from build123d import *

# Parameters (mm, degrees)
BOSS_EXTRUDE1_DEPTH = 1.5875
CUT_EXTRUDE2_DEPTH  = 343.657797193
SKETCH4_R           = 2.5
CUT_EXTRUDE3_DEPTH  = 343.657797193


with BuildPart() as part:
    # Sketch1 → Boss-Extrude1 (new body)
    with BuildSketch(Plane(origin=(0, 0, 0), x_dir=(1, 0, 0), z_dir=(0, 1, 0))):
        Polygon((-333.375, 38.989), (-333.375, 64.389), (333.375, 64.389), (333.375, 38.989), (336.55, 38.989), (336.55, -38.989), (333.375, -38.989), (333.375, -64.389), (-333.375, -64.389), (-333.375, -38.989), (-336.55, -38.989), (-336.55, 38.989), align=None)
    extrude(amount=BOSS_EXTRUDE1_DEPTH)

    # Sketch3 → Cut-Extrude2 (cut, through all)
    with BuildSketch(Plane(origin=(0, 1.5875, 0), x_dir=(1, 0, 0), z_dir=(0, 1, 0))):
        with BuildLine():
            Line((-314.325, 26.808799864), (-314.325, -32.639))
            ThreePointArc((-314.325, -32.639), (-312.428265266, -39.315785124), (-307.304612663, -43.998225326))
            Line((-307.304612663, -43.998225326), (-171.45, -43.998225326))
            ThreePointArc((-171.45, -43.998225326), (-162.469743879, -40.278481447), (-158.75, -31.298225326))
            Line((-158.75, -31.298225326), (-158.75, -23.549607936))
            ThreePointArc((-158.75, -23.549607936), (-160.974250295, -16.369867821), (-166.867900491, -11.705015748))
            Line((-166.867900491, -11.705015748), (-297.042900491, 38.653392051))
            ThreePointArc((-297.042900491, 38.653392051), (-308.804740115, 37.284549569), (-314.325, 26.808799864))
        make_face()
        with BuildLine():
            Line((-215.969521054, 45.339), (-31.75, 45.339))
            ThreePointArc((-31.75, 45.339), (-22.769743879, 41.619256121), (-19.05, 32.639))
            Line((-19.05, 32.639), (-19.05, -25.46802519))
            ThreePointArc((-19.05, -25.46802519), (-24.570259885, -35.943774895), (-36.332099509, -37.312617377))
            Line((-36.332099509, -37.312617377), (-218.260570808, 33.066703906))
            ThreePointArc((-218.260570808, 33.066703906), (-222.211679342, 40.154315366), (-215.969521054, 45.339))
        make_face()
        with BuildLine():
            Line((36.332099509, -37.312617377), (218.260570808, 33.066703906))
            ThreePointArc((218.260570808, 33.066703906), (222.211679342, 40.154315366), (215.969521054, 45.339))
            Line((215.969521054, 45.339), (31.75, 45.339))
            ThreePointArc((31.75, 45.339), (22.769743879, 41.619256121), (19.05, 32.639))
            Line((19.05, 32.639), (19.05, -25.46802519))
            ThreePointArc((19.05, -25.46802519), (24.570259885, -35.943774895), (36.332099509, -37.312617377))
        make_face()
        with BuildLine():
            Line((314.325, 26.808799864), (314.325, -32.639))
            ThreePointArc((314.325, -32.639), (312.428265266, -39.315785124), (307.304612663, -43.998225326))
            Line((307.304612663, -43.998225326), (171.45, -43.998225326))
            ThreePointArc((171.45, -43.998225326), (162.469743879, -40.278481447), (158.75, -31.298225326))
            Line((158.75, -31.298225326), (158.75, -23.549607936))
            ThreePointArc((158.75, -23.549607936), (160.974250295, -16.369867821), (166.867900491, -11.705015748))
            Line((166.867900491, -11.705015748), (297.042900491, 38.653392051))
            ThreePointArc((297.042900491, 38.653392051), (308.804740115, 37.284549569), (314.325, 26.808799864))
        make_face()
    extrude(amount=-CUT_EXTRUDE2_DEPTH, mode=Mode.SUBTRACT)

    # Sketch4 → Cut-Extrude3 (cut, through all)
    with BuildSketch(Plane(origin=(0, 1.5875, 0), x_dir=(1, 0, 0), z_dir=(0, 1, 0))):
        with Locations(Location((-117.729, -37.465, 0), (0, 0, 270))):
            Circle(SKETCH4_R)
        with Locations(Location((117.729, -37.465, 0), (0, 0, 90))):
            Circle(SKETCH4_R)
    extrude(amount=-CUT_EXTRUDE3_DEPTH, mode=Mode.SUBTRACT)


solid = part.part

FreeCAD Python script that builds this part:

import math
import FreeCAD as App
import Part
import Sketcher
from FreeCAD import Vector
Q = App.Units.Quantity

doc = App.newDocument("Part")
body = doc.addObject("PartDesign::Body", "Body")

sketch1 = body.newObject("Sketcher::SketchObject", "Sketch")
sketch1.AttachmentSupport = (doc.getObject("XZ_Plane"), [""])
sketch1.MapMode = "FlatFace"
sketch1.addGeometry(Part.LineSegment(Vector(-333.4, -64.4, 0), Vector(-333.4, -39, 0)), False)
sketch1.addGeometry(Part.LineSegment(Vector(-333.4, -39, 0), Vector(-336.6, -39, 0)), False)
sketch1.addGeometry(Part.LineSegment(Vector(-336.6, -39, 0), Vector(-336.6, 39, 0)), False)
sketch1.addGeometry(Part.LineSegment(Vector(-336.6, 39, 0), Vector(-333.4, 39, 0)), False)
sketch1.addGeometry(Part.LineSegment(Vector(-333.4, 39, 0), Vector(-333.4, 64.4, 0)), False)
sketch1.addGeometry(Part.LineSegment(Vector(-333.4, 64.4, 0), Vector(333.4, 64.4, 0)), False)
sketch1.addGeometry(Part.LineSegment(Vector(333.4, 64.4, 0), Vector(333.4, 39, 0)), False)
sketch1.addGeometry(Part.LineSegment(Vector(333.4, 39, 0), Vector(336.6, 39, 0)), False)
sketch1.addGeometry(Part.LineSegment(Vector(336.6, 39, 0), Vector(336.6, -39, 0)), False)
sketch1.addGeometry(Part.LineSegment(Vector(336.6, -39, 0), Vector(333.4, -39, 0)), False)
sketch1.addGeometry(Part.LineSegment(Vector(333.4, -39, 0), Vector(333.4, -64.4, 0)), False)
sketch1.addGeometry(Part.LineSegment(Vector(333.4, -64.4, 0), Vector(-333.4, -64.4, 0)), False)
sketch1.addConstraint(Sketcher.Constraint("Coincident", 0, 2, 1, 1))
sketch1.addConstraint(Sketcher.Constraint("Coincident", 1, 2, 2, 1))
sketch1.addConstraint(Sketcher.Constraint("Coincident", 2, 2, 3, 1))
sketch1.addConstraint(Sketcher.Constraint("Coincident", 3, 2, 4, 1))
sketch1.addConstraint(Sketcher.Constraint("Coincident", 4, 2, 5, 1))
sketch1.addConstraint(Sketcher.Constraint("Coincident", 5, 2, 6, 1))
sketch1.addConstraint(Sketcher.Constraint("Coincident", 6, 2, 7, 1))
sketch1.addConstraint(Sketcher.Constraint("Coincident", 7, 2, 8, 1))
sketch1.addConstraint(Sketcher.Constraint("Coincident", 8, 2, 9, 1))
sketch1.addConstraint(Sketcher.Constraint("Coincident", 9, 2, 10, 1))
sketch1.addConstraint(Sketcher.Constraint("Coincident", 10, 2, 11, 1))
sketch1.addConstraint(Sketcher.Constraint("Coincident", 11, 2, 0, 1))
sketch1.addConstraint(Sketcher.Constraint("Vertical", 0))
sketch1.addConstraint(Sketcher.Constraint("Horizontal", 1))
sketch1.addConstraint(Sketcher.Constraint("Vertical", 2))
sketch1.addConstraint(Sketcher.Constraint("Horizontal", 3))
sketch1.addConstraint(Sketcher.Constraint("Vertical", 4))
sketch1.addConstraint(Sketcher.Constraint("Horizontal", 5))
sketch1.addConstraint(Sketcher.Constraint("Vertical", 6))
sketch1.addConstraint(Sketcher.Constraint("Horizontal", 7))
sketch1.addConstraint(Sketcher.Constraint("Vertical", 8))
sketch1.addConstraint(Sketcher.Constraint("Horizontal", 9))
sketch1.addConstraint(Sketcher.Constraint("Vertical", 10))
sketch1.addConstraint(Sketcher.Constraint("Horizontal", 11))
sketch1.addConstraint(Sketcher.Constraint("Symmetric", 0, 2, 6, 2, -1, 1))
sketch1.addConstraint(Sketcher.Constraint("Symmetric", 2, 2, 8, 2, -1, 1))
sketch1.addConstraint(Sketcher.Constraint("Symmetric", 4, 2, 10, 2, -1, 1))
sketch1.addConstraint(Sketcher.Constraint("Symmetric", 3, 2, 6, 2, -2))
sketch1.addConstraint(Sketcher.Constraint("DistanceY", 0, 1, 0, 2, Q("1 in")))
sketch1.addConstraint(Sketcher.Constraint("DistanceX", 5, 1, 5, 2, Q("26.25 in")))
sketch1.addConstraint(Sketcher.Constraint("DistanceY", 2, 1, 2, 2, Q("3.07 in")))
sketch1.addConstraint(Sketcher.Constraint("DistanceX", 2, 2, 7, 2, Q("26.5 in")))
pad1 = body.newObject("PartDesign::Pad", "Pad")
pad1.Profile = sketch1
pad1.Length = Q("0.0625 in")
pad1.Reversed = True

sketch2 = body.newObject("Sketcher::SketchObject", "Sketch001")
sketch2.AttachmentSupport = (doc.getObject("XZ_Plane"), [""])
sketch2.MapMode = "FlatFace"
sketch2.AttachmentOffset = App.Placement(Vector(0, 0, -0.0625 * 25.4), App.Rotation())
sketch2.addGeometry(Part.LineSegment(Vector(-314, -27, 0), Vector(-314, 33, 0)), False)
sketch2.addGeometry(Part.ArcOfCircle(Part.Circle(Vector(-302, 33, 0), Vector(0, 0, 1), 13), math.radians(117), math.radians(180)), False)
sketch2.addGeometry(Part.LineSegment(Vector(-307, 44, 0), Vector(-171, 44, 0)), False)
sketch2.addGeometry(Part.ArcOfCircle(Part.Circle(Vector(-171, 31, 0), Vector(0, 0, 1), 13), math.radians(0), math.radians(90)), False)
sketch2.addGeometry(Part.LineSegment(Vector(-159, 31, 0), Vector(-159, 24, 0)), False)
sketch2.addGeometry(Part.ArcOfCircle(Part.Circle(Vector(-171, 24, 0), Vector(0, 0, 1), 13), math.radians(-69), math.radians(0)), False)
sketch2.addGeometry(Part.LineSegment(Vector(-167, 12, 0), Vector(-297, -39, 0)), False)
sketch2.addGeometry(Part.ArcOfCircle(Part.Circle(Vector(-302, -27, 0), Vector(0, 0, 1), 13), math.radians(180), math.radians(291)), False)
sketch2.addGeometry(Part.LineSegment(Vector(-32, -45, 0), Vector(-216, -45, 0)), False)
sketch2.addGeometry(Part.ArcOfCircle(Part.Circle(Vector(-216, -39, 0), Vector(0, 0, 1), 6), math.radians(111), math.radians(270)), False)
sketch2.addGeometry(Part.LineSegment(Vector(-218, -33, 0), Vector(-36, 37, 0)), False)
sketch2.addGeometry(Part.ArcOfCircle(Part.Circle(Vector(-32, 25, 0), Vector(0, 0, 1), 13), math.radians(0), math.radians(111)), False)
sketch2.addGeometry(Part.LineSegment(Vector(-19, 25, 0), Vector(-19, -33, 0)), False)
sketch2.addGeometry(Part.ArcOfCircle(Part.Circle(Vector(-32, -33, 0), Vector(0, 0, 1), 13), math.radians(-90), math.radians(0)), False)
sketch2.addGeometry(Part.LineSegment(Vector(36, 37, 0), Vector(218, -33, 0)), False)
sketch2.addGeometry(Part.ArcOfCircle(Part.Circle(Vector(216, -39, 0), Vector(0, 0, 1), 6), math.radians(-90), math.radians(69)), False)
sketch2.addGeometry(Part.LineSegment(Vector(216, -45, 0), Vector(32, -45, 0)), False)
sketch2.addGeometry(Part.ArcOfCircle(Part.Circle(Vector(32, -33, 0), Vector(0, 0, 1), 13), math.radians(180), math.radians(270)), False)
sketch2.addGeometry(Part.LineSegment(Vector(19, -33, 0), Vector(19, 25, 0)), False)
sketch2.addGeometry(Part.ArcOfCircle(Part.Circle(Vector(32, 25, 0), Vector(0, 0, 1), 13), math.radians(69), math.radians(180)), False)
sketch2.addGeometry(Part.LineSegment(Vector(314, 33, 0), Vector(314, -27, 0)), False)
sketch2.addGeometry(Part.ArcOfCircle(Part.Circle(Vector(302, -27, 0), Vector(0, 0, 1), 13), math.radians(-111), math.radians(0)), False)
sketch2.addGeometry(Part.LineSegment(Vector(297, -39, 0), Vector(167, 12, 0)), False)
sketch2.addGeometry(Part.ArcOfCircle(Part.Circle(Vector(171, 24, 0), Vector(0, 0, 1), 13), math.radians(180), math.radians(249)), False)
sketch2.addGeometry(Part.LineSegment(Vector(159, 24, 0), Vector(159, 31, 0)), False)
sketch2.addGeometry(Part.ArcOfCircle(Part.Circle(Vector(171, 31, 0), Vector(0, 0, 1), 13), math.radians(90), math.radians(180)), False)
sketch2.addGeometry(Part.LineSegment(Vector(171, 44, 0), Vector(307, 44, 0)), False)
sketch2.addGeometry(Part.ArcOfCircle(Part.Circle(Vector(302, 33, 0), Vector(0, 0, 1), 13), math.radians(0), math.radians(63)), False)
sketch2.addConstraint(Sketcher.Constraint("Tangent", 0, 2, 1, 2))
sketch2.addConstraint(Sketcher.Constraint("Coincident", 1, 1, 2, 1))
sketch2.addConstraint(Sketcher.Constraint("Tangent", 2, 2, 3, 2))
sketch2.addConstraint(Sketcher.Constraint("Tangent", 3, 1, 4, 1))
sketch2.addConstraint(Sketcher.Constraint("Tangent", 4, 2, 5, 2))
sketch2.addConstraint(Sketcher.Constraint("Tangent", 5, 1, 6, 1))
sketch2.addConstraint(Sketcher.Constraint("Tangent", 6, 2, 7, 2))
sketch2.addConstraint(Sketcher.Constraint("Tangent", 7, 1, 0, 1))
sketch2.addConstraint(Sketcher.Constraint("Tangent", 8, 2, 9, 2))
sketch2.addConstraint(Sketcher.Constraint("Tangent", 9, 1, 10, 1))
sketch2.addConstraint(Sketcher.Constraint("Tangent", 10, 2, 11, 2))
sketch2.addConstraint(Sketcher.Constraint("Tangent", 11, 1, 12, 1))
sketch2.addConstraint(Sketcher.Constraint("Tangent", 12, 2, 13, 2))
sketch2.addConstraint(Sketcher.Constraint("Tangent", 13, 1, 8, 1))
sketch2.addConstraint(Sketcher.Constraint("Tangent", 14, 2, 15, 2))
sketch2.addConstraint(Sketcher.Constraint("Tangent", 15, 1, 16, 1))
sketch2.addConstraint(Sketcher.Constraint("Tangent", 16, 2, 17, 2))
sketch2.addConstraint(Sketcher.Constraint("Tangent", 17, 1, 18, 1))
sketch2.addConstraint(Sketcher.Constraint("Tangent", 18, 2, 19, 2))
sketch2.addConstraint(Sketcher.Constraint("Tangent", 19, 1, 14, 1))
sketch2.addConstraint(Sketcher.Constraint("Tangent", 20, 2, 21, 2))
sketch2.addConstraint(Sketcher.Constraint("Tangent", 21, 1, 22, 1))
sketch2.addConstraint(Sketcher.Constraint("Tangent", 22, 2, 23, 2))
sketch2.addConstraint(Sketcher.Constraint("Tangent", 23, 1, 24, 1))
sketch2.addConstraint(Sketcher.Constraint("Tangent", 24, 2, 25, 2))
sketch2.addConstraint(Sketcher.Constraint("Tangent", 25, 1, 26, 1))
sketch2.addConstraint(Sketcher.Constraint("Coincident", 26, 2, 27, 2))
sketch2.addConstraint(Sketcher.Constraint("Tangent", 27, 1, 20, 1))
sketch2.addConstraint(Sketcher.Constraint("Vertical", 0))
sketch2.addConstraint(Sketcher.Constraint("Horizontal", 2))
sketch2.addConstraint(Sketcher.Constraint("Vertical", 4))
sketch2.addConstraint(Sketcher.Constraint("Horizontal", 8))
sketch2.addConstraint(Sketcher.Constraint("Vertical", 12))
sketch2.addConstraint(Sketcher.Constraint("Horizontal", 16))
sketch2.addConstraint(Sketcher.Constraint("Vertical", 18))
sketch2.addConstraint(Sketcher.Constraint("Vertical", 20))
sketch2.addConstraint(Sketcher.Constraint("Vertical", 24))
sketch2.addConstraint(Sketcher.Constraint("Horizontal", 26))
sketch2.addConstraint(Sketcher.Constraint("Equal", 1, 3))
sketch2.addConstraint(Sketcher.Constraint("Equal", 3, 5))
sketch2.addConstraint(Sketcher.Constraint("Equal", 5, 7))
sketch2.addConstraint(Sketcher.Constraint("Equal", 7, 11))
sketch2.addConstraint(Sketcher.Constraint("Equal", 11, 13))
sketch2.addConstraint(Sketcher.Constraint("Equal", 9, 15))
sketch2.addConstraint(Sketcher.Constraint("Equal", 13, 17))
sketch2.addConstraint(Sketcher.Constraint("Equal", 17, 19))
sketch2.addConstraint(Sketcher.Constraint("Equal", 19, 21))
sketch2.addConstraint(Sketcher.Constraint("Equal", 21, 23))
sketch2.addConstraint(Sketcher.Constraint("Equal", 23, 25))
sketch2.addConstraint(Sketcher.Constraint("Equal", 25, 27))
sketch2.addConstraint(Sketcher.Constraint("Symmetric", 9, 3, 15, 3, -2))
sketch2.addConstraint(Sketcher.Constraint("Symmetric", 11, 3, 19, 3, -2))
sketch2.addConstraint(Sketcher.Constraint("Symmetric", 7, 3, 21, 3, -2))
sketch2.addConstraint(Sketcher.Constraint("Symmetric", 5, 3, 23, 3, -2))
sketch2.addConstraint(Sketcher.Constraint("Symmetric", 1, 1, 26, 2, -2))
sketch2.addConstraint(Sketcher.Constraint("Parallel", 6, 10))
sketch2.addConstraint(Sketcher.Constraint("Radius", 1, Q("0.5 in")))
sketch2.addConstraint(Sketcher.Constraint("Radius", 9, Q("0.25 in")))
sketch2.addConstraint(Sketcher.Constraint("DistanceX", 5, 3, 17, 3, Q("8 in")))
sketch2.addConstraint(Sketcher.Constraint("DistanceX", 3, 1, 11, 3, Q("5 in")))
sketch2.addConstraint(Sketcher.Constraint("DistanceY", 9, 3, 1, 3, Q("2.82 in")))
sketch2.addConstraint(Sketcher.Constraint("DistanceX", 1, 3, -1, 1, Q("11.875 in")))
sketch2.addConstraint(Sketcher.Constraint("DistanceY", -1, 1, 1, 3, Q("1.285 in")))
sketch2.addConstraint(Sketcher.Constraint("DistanceY", 0, 1, 0, 2, Q("59.4478 mm")))
sketch2.addConstraint(Sketcher.Constraint("DistanceX", 8, 2, 8, 1, Q("184.219521 mm")))
sketch2.addConstraint(Sketcher.Constraint("DistanceX", 6, 2, -1, 1, Q("297.0429 mm")))
sketch2.addConstraint(Sketcher.Constraint("DistanceY", 11, 3, 3, 3, Q("5.8302 mm")))
pocket1 = body.newObject("PartDesign::Pocket", "Pocket")
pocket1.Profile = sketch2
pocket1.Type = "ThroughAll"
pocket1.Reversed = True

sketch3 = body.newObject("Sketcher::SketchObject", "Sketch002")
sketch3.AttachmentSupport = (doc.getObject("XZ_Plane"), [""])
sketch3.MapMode = "FlatFace"
sketch3.AttachmentOffset = App.Placement(Vector(0, 0, -0.0625 * 25.4), App.Rotation())
sketch3.addGeometry(Part.Circle(Vector(-117.7, 37.5, 0), Vector(0, 0, 1), 2.5), False)
sketch3.addGeometry(Part.Circle(Vector(117.7, 37.5, 0), Vector(0, 0, 1), 2.5), False)
sketch3.addConstraint(Sketcher.Constraint("Equal", 0, 1))
sketch3.addConstraint(Sketcher.Constraint("Symmetric", 0, 3, 1, 3, -2))
sketch3.addConstraint(Sketcher.Constraint("Diameter", 0, Q("5 mm")))
sketch3.addConstraint(Sketcher.Constraint("DistanceX", 0, 3, 1, 3, Q("9.27 in")))
sketch3.addConstraint(Sketcher.Constraint("DistanceY", -1, 1, 0, 3, Q("1.475 in")))
pocket2 = body.newObject("PartDesign::Pocket", "Pocket001")
pocket2.Profile = sketch3
pocket2.Type = "ThroughAll"
pocket2.Reversed = True

doc.recompute()
